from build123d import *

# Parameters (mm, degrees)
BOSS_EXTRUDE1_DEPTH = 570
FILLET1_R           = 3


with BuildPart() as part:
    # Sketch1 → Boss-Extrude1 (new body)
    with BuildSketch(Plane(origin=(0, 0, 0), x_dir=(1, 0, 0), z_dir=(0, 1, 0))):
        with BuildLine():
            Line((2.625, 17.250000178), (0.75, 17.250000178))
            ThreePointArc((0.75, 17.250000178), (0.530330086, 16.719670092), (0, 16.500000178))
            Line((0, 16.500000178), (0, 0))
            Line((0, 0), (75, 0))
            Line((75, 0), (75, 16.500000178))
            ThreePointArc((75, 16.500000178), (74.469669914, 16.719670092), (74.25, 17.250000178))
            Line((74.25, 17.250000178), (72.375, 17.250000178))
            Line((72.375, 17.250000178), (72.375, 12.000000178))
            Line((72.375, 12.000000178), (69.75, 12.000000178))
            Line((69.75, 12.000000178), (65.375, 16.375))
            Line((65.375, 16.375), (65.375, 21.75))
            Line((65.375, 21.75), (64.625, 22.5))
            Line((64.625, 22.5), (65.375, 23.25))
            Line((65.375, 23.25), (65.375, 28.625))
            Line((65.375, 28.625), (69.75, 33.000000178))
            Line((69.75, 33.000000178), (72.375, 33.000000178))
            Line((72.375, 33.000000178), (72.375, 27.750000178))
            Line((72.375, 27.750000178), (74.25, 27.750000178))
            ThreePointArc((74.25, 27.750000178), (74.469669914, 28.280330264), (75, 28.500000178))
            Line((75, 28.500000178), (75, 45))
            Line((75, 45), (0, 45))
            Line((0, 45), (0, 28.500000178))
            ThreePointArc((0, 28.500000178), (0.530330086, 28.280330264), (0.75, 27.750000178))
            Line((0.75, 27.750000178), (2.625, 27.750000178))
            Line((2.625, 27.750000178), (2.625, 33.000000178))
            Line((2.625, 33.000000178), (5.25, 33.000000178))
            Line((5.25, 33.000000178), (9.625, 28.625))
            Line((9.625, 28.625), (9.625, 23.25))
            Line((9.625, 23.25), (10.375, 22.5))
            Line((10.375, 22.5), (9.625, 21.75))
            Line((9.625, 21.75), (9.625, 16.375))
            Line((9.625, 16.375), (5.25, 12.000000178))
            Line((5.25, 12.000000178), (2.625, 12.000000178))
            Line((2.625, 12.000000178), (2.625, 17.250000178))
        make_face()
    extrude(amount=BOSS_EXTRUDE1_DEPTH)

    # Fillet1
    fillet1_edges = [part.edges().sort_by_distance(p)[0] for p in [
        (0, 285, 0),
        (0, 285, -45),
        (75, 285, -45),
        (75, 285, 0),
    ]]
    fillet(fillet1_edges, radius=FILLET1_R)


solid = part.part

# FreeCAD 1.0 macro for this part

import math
import FreeCAD as App
import Part
import Sketcher
from FreeCAD import Vector
Q = App.Units.Quantity


def edges_at(feature, points):
    """Names of the edges that pass closest to the given points."""
    edges = feature.Shape.Edges
    near = lambda p: min(range(len(edges)), key=lambda i: edges[i].distToShape(Part.Vertex(*p))[0])
    return sorted({f"Edge{near(p) + 1}" for p in points})

doc = App.newDocument("Part")
params = doc.addObject("Spreadsheet::Sheet", "Params")
for row, (alias, value) in enumerate([
    ("sketch1_width", "75 mm"),
    ("sketch1_radius", "0.75 mm"),
    ("sketch1_height", "16.5 mm"),
    ("pad1_length", "570 mm"),
    ("fillet_radius", "3 mm"),
], start=1):
    params.set(f"A{row}", alias)
    params.set(f"B{row}", "=" + value)
    params.setAlias(f"B{row}", alias)

body = doc.addObject("PartDesign::Body", "Body")

# Sketch on XZ plane
sketch1 = body.newObject("Sketcher::SketchObject", "Sketch")
sketch1.AttachmentSupport = (doc.getObject("XZ_Plane"), [""])
sketch1.MapMode = "FlatFace"
sketch1.addGeometry(Part.LineSegment(Vector(2.6, -17.3, 0), Vector(0.8, -17.3, 0)), False)
sketch1.addGeometry(Part.ArcOfCircle(Part.Circle(Vector(0, -17.3, 0), Vector(0, 0, 1), 0.8), math.radians(0), math.radians(90)), False)
sketch1.addGeometry(Part.LineSegment(Vector(0, -16.5, 0), Vector(0, 0, 0)), False)
sketch1.addGeometry(Part.LineSegment(Vector(0, 0, 0), Vector(75, 0, 0)), False)
sketch1.addGeometry(Part.LineSegment(Vector(75, 0, 0), Vector(75, -16.5, 0)), False)
sketch1.addGeometry(Part.ArcOfCircle(Part.Circle(Vector(75, -17.3, 0), Vector(0, 0, 1), 0.8), math.radians(90), math.radians(180)), False)
sketch1.addGeometry(Part.LineSegment(Vector(74.2, -17.3, 0), Vector(72.4, -17.3, 0)), False)
sketch1.addGeometry(Part.LineSegment(Vector(72.4, -17.3, 0), Vector(72.4, -12, 0)), False)
sketch1.addGeometry(Part.LineSegment(Vector(72.4, -12, 0), Vector(69.8, -12, 0)), False)
sketch1.addGeometry(Part.LineSegment(Vector(69.8, -12, 0), Vector(65.4, -16.4, 0)), False)
sketch1.addGeometry(Part.LineSegment(Vector(65.4, -16.4, 0), Vector(65.4, -21.8, 0)), False)
sketch1.addGeometry(Part.LineSegment(Vector(65.4, -21.8, 0), Vector(64.6, -22.5, 0)), False)
sketch1.addGeometry(Part.LineSegment(Vector(64.6, -22.5, 0), Vector(65.4, -23.2, 0)), False)
sketch1.addGeometry(Part.LineSegment(Vector(65.4, -23.2, 0), Vector(65.4, -28.6, 0)), False)
sketch1.addGeometry(Part.LineSegment(Vector(65.4, -28.6, 0), Vector(69.8, -33, 0)), False)
sketch1.addGeometry(Part.LineSegment(Vector(69.8, -33, 0), Vector(72.4, -33, 0)), False)
sketch1.addGeometry(Part.LineSegment(Vector(72.4, -33, 0), Vector(72.4, -27.8, 0)), False)
sketch1.addGeometry(Part.LineSegment(Vector(72.4, -27.8, 0), Vector(74.2, -27.8, 0)), False)
sketch1.addGeometry(Part.ArcOfCircle(Part.Circle(Vector(75, -27.8, 0), Vector(0, 0, 1), 0.8), math.radians(180), math.radians(270)), False)
sketch1.addGeometry(Part.LineSegment(Vector(75, -28.5, 0), Vector(75, -45, 0)), False)
sketch1.addGeometry(Part.LineSegment(Vector(75, -45, 0), Vector(0, -45, 0)), False)
sketch1.addGeometry(Part.LineSegment(Vector(0, -45, 0), Vector(0, -28.5, 0)), False)
sketch1.addGeometry(Part.ArcOfCircle(Part.Circle(Vector(0, -27.8, 0), Vector(0, 0, 1), 0.8), math.radians(-90), math.radians(0)), False)
sketch1.addGeometry(Part.LineSegment(Vector(0.8, -27.8, 0), Vector(2.6, -27.8, 0)), False)
sketch1.addGeometry(Part.LineSegment(Vector(2.6, -27.8, 0), Vector(2.6, -33, 0)), False)
sketch1.addGeometry(Part.LineSegment(Vector(2.6, -33, 0), Vector(5.2, -33, 0)), False)
sketch1.addGeometry(Part.LineSegment(Vector(5.2, -33, 0), Vector(9.6, -28.6, 0)), False)
sketch1.addGeometry(Part.LineSegment(Vector(9.6, -28.6, 0), Vector(9.6, -23.2, 0)), False)
sketch1.addGeometry(Part.LineSegment(Vector(9.6, -23.2, 0), Vector(10.4, -22.5, 0)), False)
sketch1.addGeometry(Part.LineSegment(Vector(10.4, -22.5, 0), Vector(9.6, -21.8, 0)), False)
sketch1.addGeometry(Part.LineSegment(Vector(9.6, -21.8, 0), Vector(9.6, -16.4, 0)), False)
sketch1.addGeometry(Part.LineSegment(Vector(9.6, -16.4, 0), Vector(5.2, -12, 0)), False)
sketch1.addGeometry(Part.LineSegment(Vector(5.2, -12, 0), Vector(2.6, -12, 0)), False)
sketch1.addGeometry(Part.LineSegment(Vector(2.6, -12, 0), Vector(2.6, -17.3, 0)), False)
sketch1.addConstraint(Sketcher.Constraint("Coincident", 0, 2, 1, 1))
sketch1.addConstraint(Sketcher.Constraint("Coincident", 1, 2, 2, 1))
sketch1.addConstraint(Sketcher.Constraint("Coincident", 2, 2, 3, 1))
sketch1.addConstraint(Sketcher.Constraint("Coincident", 3, 2, 4, 1))
sketch1.addConstraint(Sketcher.Constraint("Coincident", 4, 2, 5, 1))
sketch1.addConstraint(Sketcher.Constraint("Coincident", 5, 2, 6, 1))
sketch1.addConstraint(Sketcher.Constraint("Coincident", 6, 2, 7, 1))
sketch1.addConstraint(Sketcher.Constraint("Coincident", 7, 2, 8, 1))
sketch1.addConstraint(Sketcher.Constraint("Coincident", 8, 2, 9, 1))
sketch1.addConstraint(Sketcher.Constraint("Coincident", 9, 2, 10, 1))
sketch1.addConstraint(Sketcher.Constraint("Coincident", 10, 2, 11, 1))
sketch1.addConstraint(Sketcher.Constraint("Coincident", 11, 2, 12, 1))
sketch1.addConstraint(Sketcher.Constraint("Coincident", 12, 2, 13, 1))
sketch1.addConstraint(Sketcher.Constraint("Coincident", 13, 2, 14, 1))
sketch1.addConstraint(Sketcher.Constraint("Coincident", 14, 2, 15, 1))
sketch1.addConstraint(Sketcher.Constraint("Coincident", 15, 2, 16, 1))
sketch1.addConstraint(Sketcher.Constraint("Coincident", 16, 2, 17, 1))
sketch1.addConstraint(Sketcher.Constraint("Coincident", 17, 2, 18, 1))
sketch1.addConstraint(Sketcher.Constraint("Coincident", 18, 2, 19, 1))
sketch1.addConstraint(Sketcher.Constraint("Coincident", 19, 2, 20, 1))
sketch1.addConstraint(Sketcher.Constraint("Coincident", 20, 2, 21, 1))
sketch1.addConstraint(Sketcher.Constraint("Coincident", 21, 2, 22, 1))
sketch1.addConstraint(Sketcher.Constraint("Coincident", 22, 2, 23, 1))
sketch1.addConstraint(Sketcher.Constraint("Coincident", 23, 2, 24, 1))
sketch1.addConstraint(Sketcher.Constraint("Coincident", 24, 2, 25, 1))
sketch1.addConstraint(Sketcher.Constraint("Coincident", 25, 2, 26, 1))
sketch1.addConstraint(Sketcher.Constraint("Coincident", 26, 2, 27, 1))
sketch1.addConstraint(Sketcher.Constraint("Coincident", 27, 2, 28, 1))
sketch1.addConstraint(Sketcher.Constraint("Coincident", 28, 2, 29, 1))
sketch1.addConstraint(Sketcher.Constraint("Coincident", 29, 2, 30, 1))
sketch1.addConstraint(Sketcher.Constraint("Coincident", 30, 2, 31, 1))
sketch1.addConstraint(Sketcher.Constraint("Coincident", 31, 2, 32, 1))
sketch1.addConstraint(Sketcher.Constraint("Coincident", 32, 2, 33, 1))
sketch1.addConstraint(Sketcher.Constraint("Coincident", 33, 2, 0, 1))
sketch1.addConstraint(Sketcher.Constraint("Horizontal", 0))
sketch1.addConstraint(Sketcher.Constraint("Vertical", 2))
sketch1.addConstraint(Sketcher.Constraint("Horizontal", 3))
sketch1.addConstraint(Sketcher.Constraint("Vertical", 4))
sketch1.addConstraint(Sketcher.Constraint("Horizontal", 6))
sketch1.addConstraint(Sketcher.Constraint("Vertical", 7))
sketch1.addConstraint(Sketcher.Constraint("Horizontal", 8))
sketch1.addConstraint(Sketcher.Constraint("Vertical", 10))
sketch1.addConstraint(Sketcher.Constraint("Vertical", 13))
sketch1.addConstraint(Sketcher.Constraint("Horizontal", 15))
sketch1.addConstraint(Sketcher.Constraint("Vertical", 16))
sketch1.addConstraint(Sketcher.Constraint("Horizontal", 17))
sketch1.addConstraint(Sketcher.Constraint("Vertical", 19))
sketch1.addConstraint(Sketcher.Constraint("Horizontal", 20))
sketch1.addConstraint(Sketcher.Constraint("Vertical", 21))
sketch1.addConstraint(Sketcher.Constraint("Horizontal", 23))
sketch1.addConstraint(Sketcher.Constraint("Vertical", 24))
sketch1.addConstraint(Sketcher.Constraint("Horizontal", 25))
sketch1.addConstraint(Sketcher.Constraint("Vertical", 27))
sketch1.addConstraint(Sketcher.Constraint("Vertical", 30))
sketch1.addConstraint(Sketcher.Constraint("Horizontal", 32))
sketch1.addConstraint(Sketcher.Constraint("Vertical", 33))
sketch1.addConstraint(Sketcher.Constraint("Coincident", 2, 2, -1, 1))
sketch1.addConstraint(Sketcher.Constraint("Equal", 1, 5))
sketch1.addConstraint(Sketcher.Constraint("Equal", 5, 18))
sketch1.addConstraint(Sketcher.Constraint("Equal", 18, 22))
sketch1.addConstraint(Sketcher.Constraint("PointOnObject", 1, 3, -2))
sketch1.addConstraint(Sketcher.Constraint("PointOnObject", 22, 3, -2))
sketch1.addConstraint(Sketcher.Constraint("PointOnObject", 20, 2, -2))
sketch1.addConstraint(Sketcher.Constraint("Parallel", 9, 11))
sketch1.addConstraint(Sketcher.Constraint("Perpendicular", 11, 12))
sketch1.addConstraint(Sketcher.Constraint("Parallel", 12, 14))
sketch1.addConstraint(Sketcher.Constraint("Perpendicular", 14, 26))
sketch1.addConstraint(Sketcher.Constraint("Parallel", 26, 28))
sketch1.addConstraint(Sketcher.Constraint("Perpendicular", 28, 29))
sketch1.addConstraint(Sketcher.Constraint("Parallel", 29, 31))
sketch1.addConstraint(Sketcher.Constraint("Horizontal", 1, 3, 5, 3))
sketch1.addConstraint(Sketcher.Constraint("Horizontal", 18, 3, 22, 3))
sketch1.addConstraint(Sketcher.Constraint("Horizontal", 5, 3, 0, 2))
sketch1.addConstraint(Sketcher.Constraint("Horizontal", 0, 2, 5, 2))
sketch1.addConstraint(Sketcher.Constraint("Horizontal", 22, 3, 16, 2))
sketch1.addConstraint(Sketcher.Constraint("Horizontal", 17, 2, 22, 2))
sketch1.addConstraint(Sketcher.Constraint("Horizontal", 15, 2, 24, 2))
sketch1.addConstraint(Sketcher.Constraint("Horizontal", 13, 2, 26, 2))
sketch1.addConstraint(Sketcher.Constraint("Horizontal", 12, 2, 27, 2))
sketch1.addConstraint(Sketcher.Constraint("Horizontal", 11, 2, 28, 2))
sketch1.addConstraint(Sketcher.Constraint("Horizontal", 10, 2, 29, 2))
sketch1.addConstraint(Sketcher.Constraint("Horizontal", 9, 2, 30, 2))
sketch1.addConstraint(Sketcher.Constraint("Horizontal", 8, 2, 31, 2))
sketch1.addConstraint(Sketcher.Constraint("Vertical", 5, 3, 18, 3))
sketch1.addConstraint(Sketcher.Constraint("Vertical", 18, 3, 3, 2))
sketch1.addConstraint(Sketcher.Constraint("Vertical", 10, 2, 12, 2))
sketch1.addConstraint(Sketcher.Constraint("Vertical", 8, 2, 14, 2))
sketch1.addConstraint(Sketcher.Constraint("Vertical", 7, 2, 15, 2))
sketch1.addConstraint(Sketcher.Constraint("Vertical", 4, 2, 18, 2))
sketch1.addConstraint(Sketcher.Constraint("Vertical", 27, 2, 29, 2))
sketch1.addConstraint(Sketcher.Constraint("Vertical", 24, 2, 32, 2))
sketch1.addConstraint(Sketcher.Constraint("Equal", 0, 6))
sketch1.addConstraint(Sketcher.Constraint("Equal", 15, 25))
sketch1.addConstraint(Sketcher.Constraint("Equal", 10, 13))
sketch1.addConstraint(Sketcher.Constraint("Equal", 7, 16))
sketch1.addConstraint(Sketcher.Constraint("Equal", 4, 19))
sketch1.addConstraint(Sketcher.Constraint("DistanceX", 3, 1, 3, 2, Q("75 mm")))
sketch1.addConstraint(Sketcher.Constraint("Radius", 1, Q("0.75 mm")))
sketch1.addConstraint(Sketcher.Constraint("DistanceY", 2, 1, 2, 2, Q("16.5 mm")))
sketch1.addConstraint(Sketcher.Constraint("DistanceY", 7, 2, -1, 1, Q("12 mm")))
sketch1.addConstraint(Sketcher.Constraint("DistanceY", 14, 2, -1, 1, Q("33 mm")))
sketch1.addConstraint(Sketcher.Constraint("DistanceX", 9, 2, 6, 2, Q("7 mm")))
sketch1.addConstraint(Sketcher.Constraint("DistanceY", 12, 2, 6, 2, Q("6 mm")))
sketch1.addConstraint(Sketcher.Constraint("DistanceX", 8, 2, 5, 2, Q("4.5 mm")))
sketch1.addConstraint(Sketcher.Constraint("DistanceX", 0, 2, 0, 1, Q("1.875 mm")))
sketch1.setExpression("Constraints[96]", "Params.sketch1_width")
sketch1.setExpression("Constraints[97]", "Params.sketch1_radius")
sketch1.setExpression("Constraints[98]", "Params.sketch1_height")
pad1 = body.newObject("PartDesign::Pad", "Pad")
pad1.Profile = sketch1
pad1.setExpression("Length", "Params.pad1_length")
pad1.Reversed = True
doc.recompute()

fillet = body.newObject("PartDesign::Fillet", "Fillet")
fillet.Base = (pad1, edges_at(pad1, [
    (0, 285, 0),
    (0, 285, -45),
    (75, 285, -45),
    (75, 285, 0),
]))
fillet.setExpression("Radius", "Params.fillet_radius")

doc.recompute()
